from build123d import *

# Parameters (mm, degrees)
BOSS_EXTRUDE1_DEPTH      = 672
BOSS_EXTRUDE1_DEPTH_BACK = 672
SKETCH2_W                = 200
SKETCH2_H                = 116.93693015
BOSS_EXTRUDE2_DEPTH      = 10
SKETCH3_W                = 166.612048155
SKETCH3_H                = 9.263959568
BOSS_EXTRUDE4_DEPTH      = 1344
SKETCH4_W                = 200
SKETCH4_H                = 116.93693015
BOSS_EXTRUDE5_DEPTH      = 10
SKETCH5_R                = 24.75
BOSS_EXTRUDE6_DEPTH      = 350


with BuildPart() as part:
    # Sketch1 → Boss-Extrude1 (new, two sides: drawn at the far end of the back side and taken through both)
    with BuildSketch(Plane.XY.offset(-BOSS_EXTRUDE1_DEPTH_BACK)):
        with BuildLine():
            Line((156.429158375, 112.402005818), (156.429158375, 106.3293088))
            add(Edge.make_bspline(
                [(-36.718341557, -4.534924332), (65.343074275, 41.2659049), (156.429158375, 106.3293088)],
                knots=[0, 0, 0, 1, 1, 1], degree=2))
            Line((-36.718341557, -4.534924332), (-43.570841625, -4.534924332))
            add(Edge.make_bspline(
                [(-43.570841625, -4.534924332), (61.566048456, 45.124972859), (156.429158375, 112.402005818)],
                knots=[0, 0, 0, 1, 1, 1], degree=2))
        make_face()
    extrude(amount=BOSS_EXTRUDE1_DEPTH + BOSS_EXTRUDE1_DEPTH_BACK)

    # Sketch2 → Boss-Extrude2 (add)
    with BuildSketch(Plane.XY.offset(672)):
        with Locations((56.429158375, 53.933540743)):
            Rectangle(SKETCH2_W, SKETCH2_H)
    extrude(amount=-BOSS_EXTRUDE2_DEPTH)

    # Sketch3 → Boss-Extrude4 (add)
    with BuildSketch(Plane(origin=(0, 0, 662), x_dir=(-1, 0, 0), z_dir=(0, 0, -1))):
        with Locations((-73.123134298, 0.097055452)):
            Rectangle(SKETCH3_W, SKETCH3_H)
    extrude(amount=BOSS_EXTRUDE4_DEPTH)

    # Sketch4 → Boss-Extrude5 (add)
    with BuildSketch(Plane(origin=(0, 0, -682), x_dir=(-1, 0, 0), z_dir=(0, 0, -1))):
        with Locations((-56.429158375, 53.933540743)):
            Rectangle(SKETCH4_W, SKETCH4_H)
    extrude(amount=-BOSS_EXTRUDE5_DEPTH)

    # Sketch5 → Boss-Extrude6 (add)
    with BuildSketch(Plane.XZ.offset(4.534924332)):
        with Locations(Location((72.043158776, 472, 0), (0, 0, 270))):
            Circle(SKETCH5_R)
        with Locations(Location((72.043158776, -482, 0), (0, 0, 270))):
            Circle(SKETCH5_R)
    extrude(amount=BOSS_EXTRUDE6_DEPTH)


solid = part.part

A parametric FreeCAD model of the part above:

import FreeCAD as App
import Part
import Sketcher
Q = App.Units.Quantity


def add_polygon(sketch, points):
    """Adds a closed chain of lines whose ends are joined by coincident constraints."""
    first, n = sketch.GeometryCount, len(points)
    for a, b in zip(points, points[1:] + points[:1]):
        sketch.addGeometry(Part.LineSegment(App.Vector(*a, 0), App.Vector(*b, 0)), False)
    for i in range(n):
        sketch.addConstraint(Sketcher.Constraint("Coincident", first + i, 2, first + (i + 1) % n, 1))

doc = App.newDocument("Part")
params = doc.addObject("Spreadsheet::Sheet", "Params")
for row, (alias, value) in enumerate([
    ("pad1_length", "672 mm"),
    ("pad1_length2", "672 mm"),
    ("sketch2_width", "200 mm"),
    ("pad2_length", "10 mm"),
    ("pad3_length", "1344 mm"),
    ("sketch4_width", "200 mm"),
    ("pad4_length", "10 mm"),
    ("sketch5_diameter", "49.5 mm"),
    ("pad5_length", "350 mm"),
], start=1):
    params.set(f"A{row}", alias)
    params.set(f"B{row}", "=" + value)
    params.setAlias(f"B{row}", alias)

body = doc.addObject("PartDesign::Body", "Body")

sketch1 = doc.addObject("Sketcher::SketchObject", "Sketch")
body.addObject(sketch1)
sketch1.AttachmentSupport = (doc.XY_Plane, [""])
sketch1.MapMode = "FlatFace"
sketch1.addGeometry([
    Part.LineSegment(App.Vector(156.429158, 106.329309, 0), App.Vector(156.429158, 112.402006, 0)),
    Part.BSplineCurve([App.Vector(-43.570842, -4.534924, 0), App.Vector(61.566048, 45.124973, 0), App.Vector(156.429158, 112.402006, 0)], [3, 3], [0, 1], False, 2, [1, 1, 1], False),
    Part.LineSegment(App.Vector(-43.570842, -4.534924, 0), App.Vector(-36.718342, -4.534924, 0)),
    Part.BSplineCurve([App.Vector(-36.718342, -4.534924, 0), App.Vector(65.343074, 41.265905, 0), App.Vector(156.429158, 106.329309, 0)], [3, 3], [0, 1], False, 2, [1, 1, 1], False),
], False)
sketch1.addConstraint([
    Sketcher.Constraint("Block", 1),
    Sketcher.Constraint("Block", 3),
    Sketcher.Constraint("Coincident", 0, 2, 1, 2),
    Sketcher.Constraint("Coincident", 1, 1, 2, 1),
    Sketcher.Constraint("Coincident", 2, 2, 3, 1),
    Sketcher.Constraint("Coincident", 3, 2, 0, 1),
])
pad1 = doc.addObject("PartDesign::Pad", "Pad")
body.addObject(pad1)
pad1.Profile = sketch1
pad1.Type = "TwoLengths"
pad1.setExpression("Length", "Params.pad1_length")
pad1.setExpression("Length2", "Params.pad1_length2")

sketch2 = doc.addObject("Sketcher::SketchObject", "Sketch001")
body.addObject(sketch2)
sketch2.AttachmentSupport = (doc.XY_Plane, [""])
sketch2.MapMode = "FlatFace"
sketch2.AttachmentOffset = App.Placement(App.Vector(0, 0, 672), App.Rotation())
add_polygon(sketch2, [(-44, 112), (-44, -5), (156, -5), (156, 112)])
sketch2.addConstraint([
    Sketcher.Constraint("Vertical", 0),
    Sketcher.Constraint("Horizontal", 1),
    Sketcher.Constraint("Vertical", 2),
    Sketcher.Constraint("Horizontal", 3),
    Sketcher.Constraint("DistanceX", 1, 1, 1, 2, Q("200 mm")),
    Sketcher.Constraint("DistanceY", 0, 2, 0, 1, Q("116.93693 mm")),
    Sketcher.Constraint("DistanceX", 0, 2, -1, 1, Q("43.570842 mm")),
    Sketcher.Constraint("DistanceY", 0, 2, -1, 1, Q("4.534924 mm")),
])
sketch2.setExpression("Constraints[8]", "Params.sketch2_width")
pad2 = doc.addObject("PartDesign::Pad", "Pad001")
body.addObject(pad2)
pad2.Profile = sketch2
pad2.setExpression("Length", "Params.pad2_length")
pad2.Reversed = True

sketch3 = doc.addObject("Sketcher::SketchObject", "Sketch002")
body.addObject(sketch3)
sketch3.AttachmentSupport = (doc.XY_Plane, [""])
sketch3.MapMode = "FlatFace"
sketch3.AttachmentOffset = App.Placement(App.Vector(0, 0, 662), App.Rotation())
add_polygon(sketch3, [(156, 5), (156, -5), (-10, -5), (-10, 5)])
sketch3.addConstraint([
    Sketcher.Constraint("Vertical", 0),
    Sketcher.Constraint("Horizontal", 1),
    Sketcher.Constraint("Vertical", 2),
    Sketcher.Constraint("Horizontal", 3),
    Sketcher.Constraint("DistanceX", 1, 2, 1, 1, Q("166.612048 mm")),
    Sketcher.Constraint("DistanceY", 0, 2, 0, 1, Q("9.26396 mm")),
    Sketcher.Constraint("DistanceX", -1, 1, 0, 2, Q("156.429158 mm")),
    Sketcher.Constraint("DistanceY", 0, 2, -1, 1, Q("4.534924 mm")),
])
pad3 = doc.addObject("PartDesign::Pad", "Pad002")
body.addObject(pad3)
pad3.Profile = sketch3
pad3.setExpression("Length", "Params.pad3_length")
pad3.Reversed = True

sketch4 = doc.addObject("Sketcher::SketchObject", "Sketch003")
body.addObject(sketch4)
sketch4.AttachmentSupport = (doc.XY_Plane, [""])
sketch4.MapMode = "FlatFace"
sketch4.AttachmentOffset = App.Placement(App.Vector(0, 0, -682), App.Rotation())
add_polygon(sketch4, [(156, 112), (156, -5), (-44, -5), (-44, 112)])
sketch4.addConstraint([
    Sketcher.Constraint("Vertical", 0),
    Sketcher.Constraint("Horizontal", 1),
    Sketcher.Constraint("Vertical", 2),
    Sketcher.Constraint("Horizontal", 3),
    Sketcher.Constraint("DistanceX", 1, 2, 1, 1, Q("200 mm")),
    Sketcher.Constraint("DistanceY", 0, 2, 0, 1, Q("116.93693 mm")),
    Sketcher.Constraint("DistanceX", -1, 1, 0, 2, Q("156.429158 mm")),
    Sketcher.Constraint("DistanceY", 0, 2, -1, 1, Q("4.534924 mm")),
])
sketch4.setExpression("Constraints[8]", "Params.sketch4_width")
pad4 = doc.addObject("PartDesign::Pad", "Pad003")
body.addObject(pad4)
pad4.Profile = sketch4
pad4.setExpression("Length", "Params.pad4_length")

sketch5 = doc.addObject("Sketcher::SketchObject", "Sketch004")
body.addObject(sketch5)
sketch5.AttachmentSupport = (doc.XZ_Plane, [""])
sketch5.MapMode = "FlatFace"
sketch5.AttachmentOffset = App.Placement(App.Vector(0, 0, 4.534924), App.Rotation())
sketch5.addGeometry([
    Part.Circle(App.Vector(72, 472, 0), App.Vector(0, 0, 1), 25),
    Part.Circle(App.Vector(72, -482, 0), App.Vector(0, 0, 1), 25),
], False)
sketch5.addConstraint([
    Sketcher.Constraint("Equal", 0, 1),
    Sketcher.Constraint("Vertical", 0, 3, 1, 3),
    Sketcher.Constraint("Diameter", 0, Q("49.5 mm")),
    Sketcher.Constraint("DistanceY", -1, 1, 0, 3, Q("472 mm")),
    Sketcher.Constraint("DistanceY", 1, 3, -1, 1, Q("482 mm")),
    Sketcher.Constraint("DistanceX", -1, 1, 0, 3, Q("72.043159 mm")),
])
sketch5.setExpression("Constraints[2]", "Params.sketch5_diameter")
pad5 = doc.addObject("PartDesign::Pad", "Pad004")
body.addObject(pad5)
pad5.Profile = sketch5
pad5.setExpression("Length", "Params.pad5_length")

doc.recompute()
